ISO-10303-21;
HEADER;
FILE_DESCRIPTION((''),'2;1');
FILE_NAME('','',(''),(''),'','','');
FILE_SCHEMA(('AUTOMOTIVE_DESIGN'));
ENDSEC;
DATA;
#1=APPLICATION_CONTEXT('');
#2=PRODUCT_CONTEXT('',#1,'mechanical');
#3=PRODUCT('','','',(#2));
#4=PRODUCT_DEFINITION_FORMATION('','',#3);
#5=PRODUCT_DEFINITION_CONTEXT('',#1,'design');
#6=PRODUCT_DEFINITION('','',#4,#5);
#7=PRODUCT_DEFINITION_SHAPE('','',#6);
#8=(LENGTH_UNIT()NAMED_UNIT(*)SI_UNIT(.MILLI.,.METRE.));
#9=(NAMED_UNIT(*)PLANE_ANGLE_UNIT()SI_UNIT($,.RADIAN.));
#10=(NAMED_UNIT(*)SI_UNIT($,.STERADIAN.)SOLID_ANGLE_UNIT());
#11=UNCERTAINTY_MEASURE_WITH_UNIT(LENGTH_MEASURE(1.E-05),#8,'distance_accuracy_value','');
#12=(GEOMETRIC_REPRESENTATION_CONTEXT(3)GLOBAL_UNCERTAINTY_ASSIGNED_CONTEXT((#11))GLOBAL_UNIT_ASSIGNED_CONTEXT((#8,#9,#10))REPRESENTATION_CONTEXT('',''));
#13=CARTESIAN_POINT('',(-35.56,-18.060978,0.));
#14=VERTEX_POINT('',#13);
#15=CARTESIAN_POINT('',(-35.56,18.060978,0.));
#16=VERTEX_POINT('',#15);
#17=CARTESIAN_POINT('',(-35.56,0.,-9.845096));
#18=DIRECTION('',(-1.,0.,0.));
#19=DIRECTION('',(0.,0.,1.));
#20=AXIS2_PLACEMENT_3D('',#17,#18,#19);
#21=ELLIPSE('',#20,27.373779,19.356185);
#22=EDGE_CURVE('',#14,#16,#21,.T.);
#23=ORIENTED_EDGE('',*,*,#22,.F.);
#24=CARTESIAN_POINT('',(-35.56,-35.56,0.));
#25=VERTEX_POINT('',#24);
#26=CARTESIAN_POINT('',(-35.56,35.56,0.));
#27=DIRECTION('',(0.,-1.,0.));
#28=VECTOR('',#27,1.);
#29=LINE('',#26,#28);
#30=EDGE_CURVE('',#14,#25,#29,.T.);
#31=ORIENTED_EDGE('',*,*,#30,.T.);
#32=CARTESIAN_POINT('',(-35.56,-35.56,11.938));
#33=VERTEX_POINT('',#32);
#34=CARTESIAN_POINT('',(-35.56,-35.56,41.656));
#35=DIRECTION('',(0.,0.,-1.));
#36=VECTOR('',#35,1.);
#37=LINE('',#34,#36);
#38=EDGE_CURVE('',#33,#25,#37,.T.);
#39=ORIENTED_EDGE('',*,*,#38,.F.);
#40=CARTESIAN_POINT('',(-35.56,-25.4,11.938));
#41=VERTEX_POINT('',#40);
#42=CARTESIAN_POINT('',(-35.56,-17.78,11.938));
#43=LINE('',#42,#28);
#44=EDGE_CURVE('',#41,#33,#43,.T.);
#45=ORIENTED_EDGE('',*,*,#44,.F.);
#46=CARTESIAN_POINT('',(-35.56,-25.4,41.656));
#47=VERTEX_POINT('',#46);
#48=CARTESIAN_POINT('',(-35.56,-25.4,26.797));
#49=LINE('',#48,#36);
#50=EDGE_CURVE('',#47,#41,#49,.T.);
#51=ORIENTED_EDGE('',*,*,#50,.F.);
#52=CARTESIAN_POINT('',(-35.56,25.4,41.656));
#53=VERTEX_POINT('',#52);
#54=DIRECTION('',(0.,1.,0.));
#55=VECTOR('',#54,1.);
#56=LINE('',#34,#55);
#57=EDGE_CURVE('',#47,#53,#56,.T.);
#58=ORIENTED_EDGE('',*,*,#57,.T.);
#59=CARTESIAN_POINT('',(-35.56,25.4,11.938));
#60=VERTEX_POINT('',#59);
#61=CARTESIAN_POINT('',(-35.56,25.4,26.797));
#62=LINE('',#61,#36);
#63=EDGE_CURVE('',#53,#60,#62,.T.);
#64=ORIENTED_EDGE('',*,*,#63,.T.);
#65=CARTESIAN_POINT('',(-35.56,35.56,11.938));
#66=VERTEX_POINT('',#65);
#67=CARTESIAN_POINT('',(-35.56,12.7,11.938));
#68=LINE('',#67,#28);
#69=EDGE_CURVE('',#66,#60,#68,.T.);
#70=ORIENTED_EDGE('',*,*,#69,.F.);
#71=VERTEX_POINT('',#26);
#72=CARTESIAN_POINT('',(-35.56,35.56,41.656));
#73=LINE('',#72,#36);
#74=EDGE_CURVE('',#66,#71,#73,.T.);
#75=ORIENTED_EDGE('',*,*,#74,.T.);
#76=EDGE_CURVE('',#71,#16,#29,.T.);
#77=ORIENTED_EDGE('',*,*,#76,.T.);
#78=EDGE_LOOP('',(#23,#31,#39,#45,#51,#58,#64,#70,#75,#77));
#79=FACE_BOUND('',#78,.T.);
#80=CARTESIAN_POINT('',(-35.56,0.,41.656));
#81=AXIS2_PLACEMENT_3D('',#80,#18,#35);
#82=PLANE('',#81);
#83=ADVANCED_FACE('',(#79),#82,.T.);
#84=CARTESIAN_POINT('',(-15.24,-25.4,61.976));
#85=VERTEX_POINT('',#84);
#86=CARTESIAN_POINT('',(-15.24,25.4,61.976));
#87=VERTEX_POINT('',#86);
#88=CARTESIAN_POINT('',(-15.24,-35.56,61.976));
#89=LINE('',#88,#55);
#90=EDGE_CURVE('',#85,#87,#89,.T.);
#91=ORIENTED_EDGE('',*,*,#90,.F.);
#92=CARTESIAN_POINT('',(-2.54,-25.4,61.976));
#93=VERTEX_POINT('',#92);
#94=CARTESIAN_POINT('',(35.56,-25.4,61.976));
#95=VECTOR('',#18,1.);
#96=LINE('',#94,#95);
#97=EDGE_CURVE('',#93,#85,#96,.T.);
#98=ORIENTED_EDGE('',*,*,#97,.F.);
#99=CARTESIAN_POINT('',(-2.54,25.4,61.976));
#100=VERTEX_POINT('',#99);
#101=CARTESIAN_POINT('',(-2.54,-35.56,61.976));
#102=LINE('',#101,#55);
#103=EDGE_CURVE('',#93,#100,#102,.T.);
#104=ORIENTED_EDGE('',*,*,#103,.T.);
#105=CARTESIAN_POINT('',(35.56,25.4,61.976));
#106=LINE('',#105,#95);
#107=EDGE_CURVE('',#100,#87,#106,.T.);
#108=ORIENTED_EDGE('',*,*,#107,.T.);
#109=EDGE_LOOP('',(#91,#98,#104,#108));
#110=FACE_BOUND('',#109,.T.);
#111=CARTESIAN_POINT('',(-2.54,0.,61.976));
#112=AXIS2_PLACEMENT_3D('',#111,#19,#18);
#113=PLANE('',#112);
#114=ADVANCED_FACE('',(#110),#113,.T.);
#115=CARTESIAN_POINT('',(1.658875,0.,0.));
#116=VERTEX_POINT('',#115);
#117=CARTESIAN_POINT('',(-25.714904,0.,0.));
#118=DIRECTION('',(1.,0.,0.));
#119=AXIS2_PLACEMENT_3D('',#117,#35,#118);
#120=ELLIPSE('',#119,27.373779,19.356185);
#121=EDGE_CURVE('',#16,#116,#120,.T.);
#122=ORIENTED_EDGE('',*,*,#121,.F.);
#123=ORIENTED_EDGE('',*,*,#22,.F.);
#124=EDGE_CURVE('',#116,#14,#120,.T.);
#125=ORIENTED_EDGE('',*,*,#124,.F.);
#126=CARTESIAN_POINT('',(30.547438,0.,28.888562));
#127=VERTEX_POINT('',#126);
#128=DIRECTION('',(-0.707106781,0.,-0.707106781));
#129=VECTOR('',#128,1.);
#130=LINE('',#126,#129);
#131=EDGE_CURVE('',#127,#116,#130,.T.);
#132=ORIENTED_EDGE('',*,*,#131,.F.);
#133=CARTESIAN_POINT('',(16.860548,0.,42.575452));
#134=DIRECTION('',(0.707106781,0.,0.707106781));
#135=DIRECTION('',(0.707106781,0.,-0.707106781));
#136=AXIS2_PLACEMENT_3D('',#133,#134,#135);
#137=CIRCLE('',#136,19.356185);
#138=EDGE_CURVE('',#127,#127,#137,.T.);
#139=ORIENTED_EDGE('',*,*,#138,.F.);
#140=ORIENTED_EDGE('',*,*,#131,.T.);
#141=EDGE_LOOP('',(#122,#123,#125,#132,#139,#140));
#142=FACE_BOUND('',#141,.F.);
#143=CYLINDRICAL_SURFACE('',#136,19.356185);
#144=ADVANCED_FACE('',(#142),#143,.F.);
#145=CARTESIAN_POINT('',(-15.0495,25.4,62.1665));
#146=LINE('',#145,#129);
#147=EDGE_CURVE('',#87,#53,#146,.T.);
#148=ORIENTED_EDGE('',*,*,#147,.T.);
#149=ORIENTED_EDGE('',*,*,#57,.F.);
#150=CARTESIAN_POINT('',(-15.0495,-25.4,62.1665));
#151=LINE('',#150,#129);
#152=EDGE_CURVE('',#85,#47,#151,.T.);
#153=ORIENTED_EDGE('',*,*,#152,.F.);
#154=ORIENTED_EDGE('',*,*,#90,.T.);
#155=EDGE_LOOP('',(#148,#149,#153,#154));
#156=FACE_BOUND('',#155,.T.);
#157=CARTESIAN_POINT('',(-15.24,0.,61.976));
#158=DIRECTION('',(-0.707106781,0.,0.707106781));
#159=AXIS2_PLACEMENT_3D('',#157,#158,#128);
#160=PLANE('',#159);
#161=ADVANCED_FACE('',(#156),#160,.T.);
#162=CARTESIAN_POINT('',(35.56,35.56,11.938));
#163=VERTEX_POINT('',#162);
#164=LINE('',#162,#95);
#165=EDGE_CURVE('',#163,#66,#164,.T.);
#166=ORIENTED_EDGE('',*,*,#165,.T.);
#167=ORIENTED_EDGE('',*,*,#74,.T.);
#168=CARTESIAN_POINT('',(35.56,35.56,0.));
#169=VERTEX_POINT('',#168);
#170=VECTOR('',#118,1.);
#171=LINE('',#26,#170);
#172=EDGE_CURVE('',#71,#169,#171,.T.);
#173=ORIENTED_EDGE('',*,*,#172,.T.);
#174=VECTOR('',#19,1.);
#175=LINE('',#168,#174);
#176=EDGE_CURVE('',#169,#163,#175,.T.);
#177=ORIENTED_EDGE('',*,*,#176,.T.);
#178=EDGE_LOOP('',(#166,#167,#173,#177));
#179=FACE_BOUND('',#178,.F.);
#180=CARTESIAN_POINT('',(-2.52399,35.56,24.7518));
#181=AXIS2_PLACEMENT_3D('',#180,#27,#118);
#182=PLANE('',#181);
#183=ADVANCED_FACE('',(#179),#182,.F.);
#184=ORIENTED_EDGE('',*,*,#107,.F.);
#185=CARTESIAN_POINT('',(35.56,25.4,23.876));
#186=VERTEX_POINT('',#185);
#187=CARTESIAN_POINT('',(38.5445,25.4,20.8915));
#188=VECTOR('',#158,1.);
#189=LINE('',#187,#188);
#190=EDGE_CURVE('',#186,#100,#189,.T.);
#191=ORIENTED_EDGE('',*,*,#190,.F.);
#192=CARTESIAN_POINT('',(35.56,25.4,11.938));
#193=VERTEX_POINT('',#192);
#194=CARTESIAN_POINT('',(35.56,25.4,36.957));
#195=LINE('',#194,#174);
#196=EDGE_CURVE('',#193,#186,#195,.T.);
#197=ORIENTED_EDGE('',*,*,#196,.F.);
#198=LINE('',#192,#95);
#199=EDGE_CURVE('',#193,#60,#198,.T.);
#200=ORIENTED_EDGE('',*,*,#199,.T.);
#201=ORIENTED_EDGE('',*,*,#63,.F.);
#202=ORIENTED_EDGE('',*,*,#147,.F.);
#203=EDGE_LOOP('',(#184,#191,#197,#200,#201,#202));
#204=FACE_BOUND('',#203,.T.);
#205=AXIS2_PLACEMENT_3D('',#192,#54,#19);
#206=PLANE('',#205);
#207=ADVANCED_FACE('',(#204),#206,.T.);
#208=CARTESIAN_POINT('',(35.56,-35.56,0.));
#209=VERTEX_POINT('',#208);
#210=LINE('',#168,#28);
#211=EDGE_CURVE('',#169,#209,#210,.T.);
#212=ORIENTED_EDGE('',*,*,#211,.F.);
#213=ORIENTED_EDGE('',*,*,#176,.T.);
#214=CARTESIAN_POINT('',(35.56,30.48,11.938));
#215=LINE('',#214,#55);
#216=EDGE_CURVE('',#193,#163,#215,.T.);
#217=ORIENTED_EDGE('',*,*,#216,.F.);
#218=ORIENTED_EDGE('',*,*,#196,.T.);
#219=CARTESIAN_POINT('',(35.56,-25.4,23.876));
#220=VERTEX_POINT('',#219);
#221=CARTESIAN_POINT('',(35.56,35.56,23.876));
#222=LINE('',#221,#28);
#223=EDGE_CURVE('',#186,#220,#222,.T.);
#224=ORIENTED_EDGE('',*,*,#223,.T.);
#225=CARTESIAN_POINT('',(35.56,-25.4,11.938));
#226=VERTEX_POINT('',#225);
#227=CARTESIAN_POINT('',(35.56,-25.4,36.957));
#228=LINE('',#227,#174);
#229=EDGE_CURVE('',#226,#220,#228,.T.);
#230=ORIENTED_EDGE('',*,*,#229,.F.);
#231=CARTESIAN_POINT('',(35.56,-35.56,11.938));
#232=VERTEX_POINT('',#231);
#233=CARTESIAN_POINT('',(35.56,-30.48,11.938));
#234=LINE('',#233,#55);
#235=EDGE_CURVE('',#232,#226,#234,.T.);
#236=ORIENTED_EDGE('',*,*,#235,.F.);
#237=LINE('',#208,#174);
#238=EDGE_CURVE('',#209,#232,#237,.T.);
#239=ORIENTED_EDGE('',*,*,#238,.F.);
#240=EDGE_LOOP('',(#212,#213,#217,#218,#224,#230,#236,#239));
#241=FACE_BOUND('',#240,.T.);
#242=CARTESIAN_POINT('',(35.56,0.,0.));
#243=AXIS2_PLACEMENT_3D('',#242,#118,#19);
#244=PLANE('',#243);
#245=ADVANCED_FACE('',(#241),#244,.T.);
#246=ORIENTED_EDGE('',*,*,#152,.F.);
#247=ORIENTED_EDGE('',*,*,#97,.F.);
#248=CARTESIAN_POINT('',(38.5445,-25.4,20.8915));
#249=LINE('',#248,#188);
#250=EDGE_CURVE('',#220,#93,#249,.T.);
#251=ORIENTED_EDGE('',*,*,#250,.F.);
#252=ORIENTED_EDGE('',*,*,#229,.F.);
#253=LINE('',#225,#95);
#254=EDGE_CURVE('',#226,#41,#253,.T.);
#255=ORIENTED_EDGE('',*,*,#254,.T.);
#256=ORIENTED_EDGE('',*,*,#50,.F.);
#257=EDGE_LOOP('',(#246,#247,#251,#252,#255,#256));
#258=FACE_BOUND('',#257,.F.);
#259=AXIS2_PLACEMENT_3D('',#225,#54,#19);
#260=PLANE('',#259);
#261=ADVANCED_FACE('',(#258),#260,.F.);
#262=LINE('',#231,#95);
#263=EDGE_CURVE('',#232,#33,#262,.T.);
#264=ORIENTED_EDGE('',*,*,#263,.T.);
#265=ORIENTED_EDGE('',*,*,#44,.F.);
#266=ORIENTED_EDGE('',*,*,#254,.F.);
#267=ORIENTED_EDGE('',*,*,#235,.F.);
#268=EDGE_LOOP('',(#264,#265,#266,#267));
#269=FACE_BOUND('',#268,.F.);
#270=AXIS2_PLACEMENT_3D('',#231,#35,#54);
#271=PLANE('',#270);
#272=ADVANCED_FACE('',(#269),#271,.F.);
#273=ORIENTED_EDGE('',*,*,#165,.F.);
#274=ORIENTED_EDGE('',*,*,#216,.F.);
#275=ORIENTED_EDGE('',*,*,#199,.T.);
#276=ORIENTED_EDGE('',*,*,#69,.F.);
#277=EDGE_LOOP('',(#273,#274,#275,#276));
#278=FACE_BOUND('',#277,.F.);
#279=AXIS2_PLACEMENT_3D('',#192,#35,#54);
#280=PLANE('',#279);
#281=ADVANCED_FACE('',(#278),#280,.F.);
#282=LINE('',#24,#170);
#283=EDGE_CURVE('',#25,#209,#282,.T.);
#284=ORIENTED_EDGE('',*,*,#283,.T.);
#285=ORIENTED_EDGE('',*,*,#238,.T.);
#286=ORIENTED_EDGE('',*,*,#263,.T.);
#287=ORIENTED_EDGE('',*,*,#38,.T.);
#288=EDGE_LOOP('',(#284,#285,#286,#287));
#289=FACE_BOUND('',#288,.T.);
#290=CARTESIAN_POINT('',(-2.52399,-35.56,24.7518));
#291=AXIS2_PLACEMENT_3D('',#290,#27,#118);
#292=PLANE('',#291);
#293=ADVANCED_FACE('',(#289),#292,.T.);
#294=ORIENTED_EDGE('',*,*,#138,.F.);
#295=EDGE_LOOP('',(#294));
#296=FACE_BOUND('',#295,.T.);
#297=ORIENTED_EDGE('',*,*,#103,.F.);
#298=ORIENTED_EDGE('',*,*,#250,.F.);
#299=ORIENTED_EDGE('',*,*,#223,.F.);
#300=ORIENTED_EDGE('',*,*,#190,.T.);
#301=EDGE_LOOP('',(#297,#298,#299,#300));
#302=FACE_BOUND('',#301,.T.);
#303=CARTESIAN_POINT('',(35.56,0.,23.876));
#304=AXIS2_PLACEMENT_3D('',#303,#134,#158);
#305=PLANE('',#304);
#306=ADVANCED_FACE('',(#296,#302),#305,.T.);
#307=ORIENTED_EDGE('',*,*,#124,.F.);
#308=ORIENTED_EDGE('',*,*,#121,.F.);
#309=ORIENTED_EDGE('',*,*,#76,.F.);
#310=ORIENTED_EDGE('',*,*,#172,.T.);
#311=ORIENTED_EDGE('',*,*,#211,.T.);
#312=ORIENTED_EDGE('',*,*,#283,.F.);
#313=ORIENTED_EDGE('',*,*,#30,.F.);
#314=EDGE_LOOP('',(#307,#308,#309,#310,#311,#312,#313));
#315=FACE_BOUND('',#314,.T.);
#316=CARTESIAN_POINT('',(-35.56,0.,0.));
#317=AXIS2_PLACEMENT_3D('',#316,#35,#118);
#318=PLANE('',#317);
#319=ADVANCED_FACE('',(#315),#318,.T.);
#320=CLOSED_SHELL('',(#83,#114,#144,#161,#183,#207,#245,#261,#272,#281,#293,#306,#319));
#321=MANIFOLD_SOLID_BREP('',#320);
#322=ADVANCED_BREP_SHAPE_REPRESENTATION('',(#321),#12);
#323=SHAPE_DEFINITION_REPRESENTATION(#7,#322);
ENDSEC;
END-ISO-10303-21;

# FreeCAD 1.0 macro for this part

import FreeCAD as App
import Part
import Sketcher
from FreeCAD import Vector
Q = App.Units.Quantity


def add_polygon(sketch, points):
    """Adds a closed chain of lines whose ends are joined by coincident constraints."""
    first, n = sketch.GeometryCount, len(points)
    for a, b in zip(points, points[1:] + points[:1]):
        sketch.addGeometry(Part.LineSegment(App.Vector(*a, 0), App.Vector(*b, 0)), False)
    for i in range(n):
        sketch.addConstraint(Sketcher.Constraint("Coincident", first + i, 2, first + (i + 1) % n, 1))

doc = App.newDocument("Part")
body = doc.addObject("PartDesign::Body", "Body")

# Sketch on XZ plane
sketch1 = body.newObject("Sketcher::SketchObject", "Sketch")
sketch1.AttachmentSupport = (doc.getObject("XZ_Plane"), [""])
sketch1.MapMode = "FlatFace"
add_polygon(sketch1, [(-36, 42), (-36, 0), (36, 0), (36, 24), (-3, 62), (-15, 62)])  # lines 0-5
sketch1.addConstraint([
    Sketcher.Constraint("Vertical", 0),
    Sketcher.Constraint("Horizontal", 1),
    Sketcher.Constraint("Vertical", 2),
    Sketcher.Constraint("Horizontal", 4),
    Sketcher.Constraint("Symmetric", 0, 2, 1, 2, -1, 1),
    Sketcher.Constraint("Perpendicular", 3, 5),
    Sketcher.Constraint("DistanceX", 1, 1, 1, 2, Q("2.8 in")),
    Sketcher.Constraint("DistanceX", 4, 2, 4, 1, Q("0.5 in")),
    Sketcher.Constraint("Angle", 3, Q("135 deg")),
    Sketcher.Constraint("DistanceX", 4, 2, 2, 2, Q("2 in")),
    Sketcher.Constraint("DistanceY", 0, 2, 0, 1, Q("1.64 in")),
])
pad1 = body.newObject("PartDesign::Pad", "Pad")
pad1.Profile = sketch1
pad1.Length = Q("2.8 in")
pad1.Midplane = True

# Sketch on YZ plane
sketch2 = body.newObject("Sketcher::SketchObject", "Sketch001")
sketch2.AttachmentSupport = (doc.getObject("YZ_Plane"), [""])
sketch2.MapMode = "FlatFace"
sketch2.AttachmentOffset = App.Placement(Vector(0, 0, 1.4 * 25.4), App.Rotation())
add_polygon(sketch2, [(-36, 62), (-36, 12), (-25, 12), (-25, 62)])  # lines 0-3
add_polygon(sketch2, [(25, 62), (25, 12), (36, 12), (36, 62)])  # lines 4-7
sketch2.addConstraint([
    Sketcher.Constraint("Vertical", 0),
    Sketcher.Constraint("Horizontal", 1),
    Sketcher.Constraint("Vertical", 2),
    Sketcher.Constraint("Horizontal", 3),
    Sketcher.Constraint("Vertical", 4),
    Sketcher.Constraint("Horizontal", 5),
    Sketcher.Constraint("Vertical", 6),
    Sketcher.Constraint("Horizontal", 7),
    Sketcher.Constraint("Symmetric", 1, 2, 4, 2, -2),
    Sketcher.Constraint("Symmetric", 3, 2, 6, 2, -2),
    Sketcher.Constraint("DistanceX", 1, 1, 1, 2, Q("0.4 in")),
    Sketcher.Constraint("DistanceX", 1, 2, -1, 1, Q("1 in")),
    Sketcher.Constraint("DistanceY", 0, 2, 0, 1, Q("1.97 in")),
    Sketcher.Constraint("DistanceY", -1, 1, 0, 2, Q("0.47 in")),
])
pocket1 = body.newObject("PartDesign::Pocket", "Pocket")
pocket1.Profile = sketch2
pocket1.Type = "ThroughAll"

# Sketch on an angled plane
sketch3 = body.newObject("Sketcher::SketchObject", "Sketch002")
sketch3.Placement = App.Placement(Vector(29.718, 0, 29.718), App.Rotation(Vector(0.707106781, 0, -0.707106781), Vector(0, 0.999999999, 0), Vector(0.707106781, 0, 0.707106781), "ZXY"))
sketch3.addGeometry(Part.Circle(Vector(-18, 0, 0), Vector(0, 0, 1), 19), False)
sketch3.addConstraint([
    Sketcher.Constraint("PointOnObject", 0, 3, -1),
    Sketcher.Constraint("Diameter", 0, 38.71237),
    Sketcher.Constraint("DistanceX", 0, 3, -1, 1, 18.183183),
])
pocket2 = body.newObject("PartDesign::Pocket", "Pocket001")
pocket2.Profile = sketch3
pocket2.Type = "ThroughAll"

doc.recompute()
